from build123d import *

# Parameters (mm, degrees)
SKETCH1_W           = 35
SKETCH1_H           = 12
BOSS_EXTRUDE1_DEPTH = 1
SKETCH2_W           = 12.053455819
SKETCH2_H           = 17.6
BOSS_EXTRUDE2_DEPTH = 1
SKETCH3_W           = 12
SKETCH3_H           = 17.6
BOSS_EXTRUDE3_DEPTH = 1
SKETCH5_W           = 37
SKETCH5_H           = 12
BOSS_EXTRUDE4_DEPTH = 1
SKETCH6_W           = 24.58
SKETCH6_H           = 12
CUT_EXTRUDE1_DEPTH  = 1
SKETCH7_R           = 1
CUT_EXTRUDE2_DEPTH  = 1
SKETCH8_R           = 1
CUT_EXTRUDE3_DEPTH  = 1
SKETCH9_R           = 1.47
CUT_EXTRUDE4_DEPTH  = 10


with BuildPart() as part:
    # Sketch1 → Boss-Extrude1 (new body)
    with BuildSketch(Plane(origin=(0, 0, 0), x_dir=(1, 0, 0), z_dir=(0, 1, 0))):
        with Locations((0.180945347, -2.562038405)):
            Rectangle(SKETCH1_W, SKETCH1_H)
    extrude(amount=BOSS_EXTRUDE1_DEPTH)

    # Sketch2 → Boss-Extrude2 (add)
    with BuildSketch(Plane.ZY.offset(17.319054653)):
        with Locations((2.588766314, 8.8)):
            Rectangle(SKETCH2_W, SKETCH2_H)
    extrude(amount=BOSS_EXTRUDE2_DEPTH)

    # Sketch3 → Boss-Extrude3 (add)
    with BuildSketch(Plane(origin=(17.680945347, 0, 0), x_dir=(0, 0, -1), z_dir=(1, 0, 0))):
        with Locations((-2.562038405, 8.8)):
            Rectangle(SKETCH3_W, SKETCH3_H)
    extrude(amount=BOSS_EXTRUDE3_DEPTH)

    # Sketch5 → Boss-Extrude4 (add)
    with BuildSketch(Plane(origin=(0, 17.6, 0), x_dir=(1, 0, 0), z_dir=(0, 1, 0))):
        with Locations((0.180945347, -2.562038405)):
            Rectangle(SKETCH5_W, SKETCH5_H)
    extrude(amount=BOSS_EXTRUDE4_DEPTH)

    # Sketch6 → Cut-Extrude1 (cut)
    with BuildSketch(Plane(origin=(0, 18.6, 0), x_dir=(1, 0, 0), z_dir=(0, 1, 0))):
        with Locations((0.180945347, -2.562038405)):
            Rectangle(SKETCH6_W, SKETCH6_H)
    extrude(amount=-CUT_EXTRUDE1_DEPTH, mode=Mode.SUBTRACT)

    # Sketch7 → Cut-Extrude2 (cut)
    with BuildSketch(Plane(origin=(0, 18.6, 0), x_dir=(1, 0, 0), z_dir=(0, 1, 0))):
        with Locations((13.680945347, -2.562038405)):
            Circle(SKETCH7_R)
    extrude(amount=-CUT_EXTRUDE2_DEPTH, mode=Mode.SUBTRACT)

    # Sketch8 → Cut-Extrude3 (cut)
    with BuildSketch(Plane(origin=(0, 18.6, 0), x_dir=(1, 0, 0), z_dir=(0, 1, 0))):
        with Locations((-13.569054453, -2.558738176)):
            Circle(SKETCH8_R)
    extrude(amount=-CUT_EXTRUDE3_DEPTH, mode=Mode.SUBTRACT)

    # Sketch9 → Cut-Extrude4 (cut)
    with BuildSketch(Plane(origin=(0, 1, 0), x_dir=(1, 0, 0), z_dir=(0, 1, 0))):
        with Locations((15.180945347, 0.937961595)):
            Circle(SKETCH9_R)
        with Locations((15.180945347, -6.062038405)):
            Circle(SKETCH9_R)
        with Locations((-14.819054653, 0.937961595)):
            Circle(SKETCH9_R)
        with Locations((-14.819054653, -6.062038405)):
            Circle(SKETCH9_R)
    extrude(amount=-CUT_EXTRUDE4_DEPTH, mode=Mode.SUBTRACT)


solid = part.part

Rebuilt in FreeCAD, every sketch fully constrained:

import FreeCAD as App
import Part
import Sketcher
Q = App.Units.Quantity

doc = App.newDocument("Part")
params = doc.addObject("Spreadsheet::Sheet", "Params")
for row, (alias, value) in enumerate([
    ("sketch1_width", "35 mm"),
    ("sketch1_height", "12 mm"),
    ("pad1_length", "1 mm"),
    ("sketch2_width", "17.6 mm"),
    ("pad2_length", "1 mm"),
    ("sketch3_height", "12 mm"),
    ("sketch3_width", "17.6 mm"),
    ("pad3_length", "1 mm"),
    ("sketch4_width", "37 mm"),
    ("sketch4_height", "12 mm"),
    ("pad4_length", "1 mm"),
    ("sketch5_height", "12 mm"),
    ("sketch5_width", "24.58 mm"),
    ("pocket1_length", "1 mm"),
    ("sketch6_diameter", "2 mm"),
    ("pocket2_length", "1 mm"),
    ("sketch7_diameter", "2 mm"),
    ("pocket3_length", "1 mm"),
    ("sketch8_diameter", "2.94 mm"),
    ("pocket4_length", "10 mm"),
], start=1):
    params.set(f"A{row}", alias)
    params.set(f"B{row}", "=" + value)
    params.setAlias(f"B{row}", alias)

body = doc.addObject("PartDesign::Body", "Body")

sketch1 = body.newObject("Sketcher::SketchObject", "Sketch")
sketch1.AttachmentSupport = (doc.getObject("XZ_Plane"), [""])
sketch1.MapMode = "FlatFace"
sketch1.addGeometry([
    Part.LineSegment(App.Vector(-17.319055, -3.437962, 0), App.Vector(-17.319055, 8.562038, 0)),
    Part.LineSegment(App.Vector(-17.319055, 8.562038, 0), App.Vector(17.680945, 8.562038, 0)),
    Part.LineSegment(App.Vector(17.680945, 8.562038, 0), App.Vector(17.680945, -3.437962, 0)),
    Part.LineSegment(App.Vector(17.680945, -3.437962, 0), App.Vector(-17.319055, -3.437962, 0)),
], False)
sketch1.addConstraint([
    Sketcher.Constraint("Coincident", 0, 2, 1, 1),
    Sketcher.Constraint("Coincident", 1, 2, 2, 1),
    Sketcher.Constraint("Coincident", 2, 2, 3, 1),
    Sketcher.Constraint("Coincident", 3, 2, 0, 1),
    Sketcher.Constraint("Vertical", 0),
    Sketcher.Constraint("Horizontal", 1),
    Sketcher.Constraint("Vertical", 2),
    Sketcher.Constraint("Horizontal", 3),
    Sketcher.Constraint("DistanceX", 1, 1, 1, 2, Q("35 mm")),
    Sketcher.Constraint("DistanceY", 0, 1, 0, 2, Q("12 mm")),
    Sketcher.Constraint("DistanceY", -1, 1, 0, 2, Q("8.562038 mm")),
    Sketcher.Constraint("DistanceX", 0, 2, -1, 1, Q("17.319055 mm")),
])
sketch1.setExpression("Constraints[8]", "Params.sketch1_width")
sketch1.setExpression("Constraints[9]", "Params.sketch1_height")
pad1 = body.newObject("PartDesign::Pad", "Pad")
pad1.Profile = sketch1
pad1.setExpression("Length", "Params.pad1_length")
pad1.Reversed = True

sketch2 = body.newObject("Sketcher::SketchObject", "Sketch001")
sketch2.AttachmentSupport = (doc.getObject("YZ_Plane"), [""])
sketch2.MapMode = "FlatFace"
sketch2.AttachmentOffset = App.Placement(App.Vector(0, 0, -17.319055), App.Rotation())
sketch2.addGeometry([
    Part.LineSegment(App.Vector(17.6, -3.437962, 0), App.Vector(0, -3.437962, 0)),
    Part.LineSegment(App.Vector(0, -3.437962, 0), App.Vector(0, 8.615494, 0)),
    Part.LineSegment(App.Vector(0, 8.615494, 0), App.Vector(17.6, 8.615494, 0)),
    Part.LineSegment(App.Vector(17.6, 8.615494, 0), App.Vector(17.6, -3.437962, 0)),
], False)
sketch2.addConstraint([
    Sketcher.Constraint("Coincident", 0, 2, 1, 1),
    Sketcher.Constraint("Coincident", 1, 2, 2, 1),
    Sketcher.Constraint("Coincident", 2, 2, 3, 1),
    Sketcher.Constraint("Coincident", 3, 2, 0, 1),
    Sketcher.Constraint("Horizontal", 0),
    Sketcher.Constraint("Vertical", 1),
    Sketcher.Constraint("Horizontal", 2),
    Sketcher.Constraint("Vertical", 3),
    Sketcher.Constraint("PointOnObject", 0, 2, -2),
    Sketcher.Constraint("DistanceX", 0, 2, 0, 1, Q("17.6 mm")),
    Sketcher.Constraint("DistanceY", 1, 1, 1, 2, Q("12.053456 mm")),
    Sketcher.Constraint("DistanceY", 0, 2, -1, 1, Q("3.437962 mm")),
])
sketch2.setExpression("Constraints[9]", "Params.sketch2_width")
pad2 = body.newObject("PartDesign::Pad", "Pad001")
pad2.Profile = sketch2
pad2.setExpression("Length", "Params.pad2_length")
pad2.Reversed = True

sketch3 = body.newObject("Sketcher::SketchObject", "Sketch002")
sketch3.AttachmentSupport = (doc.getObject("YZ_Plane"), [""])
sketch3.MapMode = "FlatFace"
sketch3.AttachmentOffset = App.Placement(App.Vector(0, 0, 17.680945), App.Rotation())
sketch3.addGeometry([
    Part.LineSegment(App.Vector(17.6, 8.562038, 0), App.Vector(0, 8.562038, 0)),
    Part.LineSegment(App.Vector(0, 8.562038, 0), App.Vector(0, -3.437962, 0)),
    Part.LineSegment(App.Vector(0, -3.437962, 0), App.Vector(17.6, -3.437962, 0)),
    Part.LineSegment(App.Vector(17.6, -3.437962, 0), App.Vector(17.6, 8.562038, 0)),
], False)
sketch3.addConstraint([
    Sketcher.Constraint("Coincident", 0, 2, 1, 1),
    Sketcher.Constraint("Coincident", 1, 2, 2, 1),
    Sketcher.Constraint("Coincident", 2, 2, 3, 1),
    Sketcher.Constraint("Coincident", 3, 2, 0, 1),
    Sketcher.Constraint("Horizontal", 0),
    Sketcher.Constraint("Vertical", 1),
    Sketcher.Constraint("Horizontal", 2),
    Sketcher.Constraint("Vertical", 3),
    Sketcher.Constraint("PointOnObject", 0, 2, -2),
    Sketcher.Constraint("DistanceY", 1, 2, 1, 1, Q("12 mm")),
    Sketcher.Constraint("DistanceX", 0, 2, 0, 1, Q("17.6 mm")),
    Sketcher.Constraint("DistanceY", -1, 1, 0, 2, Q("8.562038 mm")),
])
sketch3.setExpression("Constraints[9]", "Params.sketch3_height")
sketch3.setExpression("Constraints[10]", "Params.sketch3_width")
pad3 = body.newObject("PartDesign::Pad", "Pad002")
pad3.Profile = sketch3
pad3.setExpression("Length", "Params.pad3_length")

sketch4 = body.newObject("Sketcher::SketchObject", "Sketch003")
sketch4.AttachmentSupport = (doc.getObject("XZ_Plane"), [""])
sketch4.MapMode = "FlatFace"
sketch4.AttachmentOffset = App.Placement(App.Vector(0, 0, -17.6), App.Rotation())
sketch4.addGeometry([
    Part.LineSegment(App.Vector(-18.319055, -3.437962, 0), App.Vector(-18.319055, 8.562038, 0)),
    Part.LineSegment(App.Vector(-18.319055, 8.562038, 0), App.Vector(18.680945, 8.562038, 0)),
    Part.LineSegment(App.Vector(18.680945, 8.562038, 0), App.Vector(18.680945, -3.437962, 0)),
    Part.LineSegment(App.Vector(18.680945, -3.437962, 0), App.Vector(-18.319055, -3.437962, 0)),
], False)
sketch4.addConstraint([
    Sketcher.Constraint("Coincident", 0, 2, 1, 1),
    Sketcher.Constraint("Coincident", 1, 2, 2, 1),
    Sketcher.Constraint("Coincident", 2, 2, 3, 1),
    Sketcher.Constraint("Coincident", 3, 2, 0, 1),
    Sketcher.Constraint("Vertical", 0),
    Sketcher.Constraint("Horizontal", 1),
    Sketcher.Constraint("Vertical", 2),
    Sketcher.Constraint("Horizontal", 3),
    Sketcher.Constraint("DistanceX", 1, 1, 1, 2, Q("37 mm")),
    Sketcher.Constraint("DistanceY", 0, 1, 0, 2, Q("12 mm")),
    Sketcher.Constraint("DistanceY", -1, 1, 0, 2, Q("8.562038 mm")),
    Sketcher.Constraint("DistanceX", 0, 2, -1, 1, Q("18.319055 mm")),
])
sketch4.setExpression("Constraints[8]", "Params.sketch4_width")
sketch4.setExpression("Constraints[9]", "Params.sketch4_height")
pad4 = body.newObject("PartDesign::Pad", "Pad003")
pad4.Profile = sketch4
pad4.setExpression("Length", "Params.pad4_length")
pad4.Reversed = True

sketch5 = body.newObject("Sketcher::SketchObject", "Sketch004")
sketch5.AttachmentSupport = (doc.getObject("XZ_Plane"), [""])
sketch5.MapMode = "FlatFace"
sketch5.AttachmentOffset = App.Placement(App.Vector(0, 0, -18.6), App.Rotation())
sketch5.addGeometry([
    Part.LineSegment(App.Vector(-12.109055, -3.437962, 0), App.Vector(-12.109055, 8.562038, 0)),
    Part.LineSegment(App.Vector(-12.109055, 8.562038, 0), App.Vector(12.470945, 8.562038, 0)),
    Part.LineSegment(App.Vector(12.470945, 8.562038, 0), App.Vector(12.470945, -3.437962, 0)),
    Part.LineSegment(App.Vector(12.470945, -3.437962, 0), App.Vector(-12.109055, -3.437962, 0)),
], False)
sketch5.addConstraint([
    Sketcher.Constraint("Coincident", 0, 2, 1, 1),
    Sketcher.Constraint("Coincident", 1, 2, 2, 1),
    Sketcher.Constraint("Coincident", 2, 2, 3, 1),
    Sketcher.Constraint("Coincident", 3, 2, 0, 1),
    Sketcher.Constraint("Vertical", 0),
    Sketcher.Constraint("Horizontal", 1),
    Sketcher.Constraint("Vertical", 2),
    Sketcher.Constraint("Horizontal", 3),
    Sketcher.Constraint("DistanceY", 0, 1, 0, 2, Q("12 mm")),
    Sketcher.Constraint("DistanceX", 1, 1, 1, 2, Q("24.58 mm")),
    Sketcher.Constraint("DistanceY", -1, 1, 0, 2, Q("8.562038 mm")),
    Sketcher.Constraint("DistanceX", 0, 2, -1, 1, Q("12.109055 mm")),
])
sketch5.setExpression("Constraints[8]", "Params.sketch5_height")
sketch5.setExpression("Constraints[9]", "Params.sketch5_width")
pocket1 = body.newObject("PartDesign::Pocket", "Pocket")
pocket1.Profile = sketch5
pocket1.setExpression("Length", "Params.pocket1_length")
pocket1.Reversed = True

sketch6 = body.newObject("Sketcher::SketchObject", "Sketch005")
sketch6.AttachmentSupport = (doc.getObject("XZ_Plane"), [""])
sketch6.MapMode = "FlatFace"
sketch6.AttachmentOffset = App.Placement(App.Vector(0, 0, -18.6), App.Rotation())
sketch6.addGeometry(Part.Circle(App.Vector(13.680945, 2.562038, 0), App.Vector(0, 0, 1), 1), False)
sketch6.addConstraint([
    Sketcher.Constraint("Diameter", 0, Q("2 mm")),
    Sketcher.Constraint("DistanceY", -1, 1, 0, 3, Q("2.562038 mm")),
    Sketcher.Constraint("DistanceX", -1, 1, 0, 3, Q("13.680945 mm")),
])
sketch6.setExpression("Constraints[0]", "Params.sketch6_diameter")
pocket2 = body.newObject("PartDesign::Pocket", "Pocket001")
pocket2.Profile = sketch6
pocket2.setExpression("Length", "Params.pocket2_length")
pocket2.Reversed = True

sketch7 = body.newObject("Sketcher::SketchObject", "Sketch006")
sketch7.AttachmentSupport = (doc.getObject("XZ_Plane"), [""])
sketch7.MapMode = "FlatFace"
sketch7.AttachmentOffset = App.Placement(App.Vector(0, 0, -18.6), App.Rotation())
sketch7.addGeometry(Part.Circle(App.Vector(-13.569054, 2.558738, 0), App.Vector(0, 0, 1), 1), False)
sketch7.addConstraint([
    Sketcher.Constraint("Diameter", 0, Q("2 mm")),
    Sketcher.Constraint("DistanceY", -1, 1, 0, 3, Q("2.558738 mm")),
    Sketcher.Constraint("DistanceX", 0, 3, -1, 1, Q("13.569054 mm")),
])
sketch7.setExpression("Constraints[0]", "Params.sketch7_diameter")
pocket3 = body.newObject("PartDesign::Pocket", "Pocket002")
pocket3.Profile = sketch7
pocket3.setExpression("Length", "Params.pocket3_length")
pocket3.Reversed = True

sketch8 = body.newObject("Sketcher::SketchObject", "Sketch007")
sketch8.AttachmentSupport = (doc.getObject("XZ_Plane"), [""])
sketch8.MapMode = "FlatFace"
sketch8.AttachmentOffset = App.Placement(App.Vector(0, 0, -1), App.Rotation())
sketch8.addGeometry([
    Part.Circle(App.Vector(15.180945, -0.937962, 0), App.Vector(0, 0, 1), 1.47),
    Part.Circle(App.Vector(15.180945, 6.062038, 0), App.Vector(0, 0, 1), 1.47),
    Part.Circle(App.Vector(-14.819055, -0.937962, 0), App.Vector(0, 0, 1), 1.47),
    Part.Circle(App.Vector(-14.819055, 6.062038, 0), App.Vector(0, 0, 1), 1.47),
], False)
sketch8.addConstraint([
    Sketcher.Constraint("Equal", 0, 1),
    Sketcher.Constraint("Equal", 1, 2),
    Sketcher.Constraint("Equal", 2, 3),
    Sketcher.Constraint("Horizontal", 0, 3, 2, 3),
    Sketcher.Constraint("Horizontal", 1, 3, 3, 3),
    Sketcher.Constraint("Vertical", 0, 3, 1, 3),
    Sketcher.Constraint("Vertical", 2, 3, 3, 3),
    Sketcher.Constraint("Diameter", 0, Q("2.94 mm")),
    Sketcher.Constraint("DistanceY", 0, 3, 1, 3, Q("7 mm")),
    Sketcher.Constraint("DistanceX", 2, 3, 0, 3, Q("30 mm")),
    Sketcher.Constraint("DistanceY", 0, 3, -1, 1, Q("0.937962 mm")),
    Sketcher.Constraint("DistanceX", -1, 1, 0, 3, Q("15.180945 mm")),
])
sketch8.setExpression("Constraints[7]", "Params.sketch8_diameter")
pocket4 = body.newObject("PartDesign::Pocket", "Pocket003")
pocket4.Profile = sketch8
pocket4.setExpression("Length", "Params.pocket4_length")
pocket4.Reversed = True

doc.recompute()
